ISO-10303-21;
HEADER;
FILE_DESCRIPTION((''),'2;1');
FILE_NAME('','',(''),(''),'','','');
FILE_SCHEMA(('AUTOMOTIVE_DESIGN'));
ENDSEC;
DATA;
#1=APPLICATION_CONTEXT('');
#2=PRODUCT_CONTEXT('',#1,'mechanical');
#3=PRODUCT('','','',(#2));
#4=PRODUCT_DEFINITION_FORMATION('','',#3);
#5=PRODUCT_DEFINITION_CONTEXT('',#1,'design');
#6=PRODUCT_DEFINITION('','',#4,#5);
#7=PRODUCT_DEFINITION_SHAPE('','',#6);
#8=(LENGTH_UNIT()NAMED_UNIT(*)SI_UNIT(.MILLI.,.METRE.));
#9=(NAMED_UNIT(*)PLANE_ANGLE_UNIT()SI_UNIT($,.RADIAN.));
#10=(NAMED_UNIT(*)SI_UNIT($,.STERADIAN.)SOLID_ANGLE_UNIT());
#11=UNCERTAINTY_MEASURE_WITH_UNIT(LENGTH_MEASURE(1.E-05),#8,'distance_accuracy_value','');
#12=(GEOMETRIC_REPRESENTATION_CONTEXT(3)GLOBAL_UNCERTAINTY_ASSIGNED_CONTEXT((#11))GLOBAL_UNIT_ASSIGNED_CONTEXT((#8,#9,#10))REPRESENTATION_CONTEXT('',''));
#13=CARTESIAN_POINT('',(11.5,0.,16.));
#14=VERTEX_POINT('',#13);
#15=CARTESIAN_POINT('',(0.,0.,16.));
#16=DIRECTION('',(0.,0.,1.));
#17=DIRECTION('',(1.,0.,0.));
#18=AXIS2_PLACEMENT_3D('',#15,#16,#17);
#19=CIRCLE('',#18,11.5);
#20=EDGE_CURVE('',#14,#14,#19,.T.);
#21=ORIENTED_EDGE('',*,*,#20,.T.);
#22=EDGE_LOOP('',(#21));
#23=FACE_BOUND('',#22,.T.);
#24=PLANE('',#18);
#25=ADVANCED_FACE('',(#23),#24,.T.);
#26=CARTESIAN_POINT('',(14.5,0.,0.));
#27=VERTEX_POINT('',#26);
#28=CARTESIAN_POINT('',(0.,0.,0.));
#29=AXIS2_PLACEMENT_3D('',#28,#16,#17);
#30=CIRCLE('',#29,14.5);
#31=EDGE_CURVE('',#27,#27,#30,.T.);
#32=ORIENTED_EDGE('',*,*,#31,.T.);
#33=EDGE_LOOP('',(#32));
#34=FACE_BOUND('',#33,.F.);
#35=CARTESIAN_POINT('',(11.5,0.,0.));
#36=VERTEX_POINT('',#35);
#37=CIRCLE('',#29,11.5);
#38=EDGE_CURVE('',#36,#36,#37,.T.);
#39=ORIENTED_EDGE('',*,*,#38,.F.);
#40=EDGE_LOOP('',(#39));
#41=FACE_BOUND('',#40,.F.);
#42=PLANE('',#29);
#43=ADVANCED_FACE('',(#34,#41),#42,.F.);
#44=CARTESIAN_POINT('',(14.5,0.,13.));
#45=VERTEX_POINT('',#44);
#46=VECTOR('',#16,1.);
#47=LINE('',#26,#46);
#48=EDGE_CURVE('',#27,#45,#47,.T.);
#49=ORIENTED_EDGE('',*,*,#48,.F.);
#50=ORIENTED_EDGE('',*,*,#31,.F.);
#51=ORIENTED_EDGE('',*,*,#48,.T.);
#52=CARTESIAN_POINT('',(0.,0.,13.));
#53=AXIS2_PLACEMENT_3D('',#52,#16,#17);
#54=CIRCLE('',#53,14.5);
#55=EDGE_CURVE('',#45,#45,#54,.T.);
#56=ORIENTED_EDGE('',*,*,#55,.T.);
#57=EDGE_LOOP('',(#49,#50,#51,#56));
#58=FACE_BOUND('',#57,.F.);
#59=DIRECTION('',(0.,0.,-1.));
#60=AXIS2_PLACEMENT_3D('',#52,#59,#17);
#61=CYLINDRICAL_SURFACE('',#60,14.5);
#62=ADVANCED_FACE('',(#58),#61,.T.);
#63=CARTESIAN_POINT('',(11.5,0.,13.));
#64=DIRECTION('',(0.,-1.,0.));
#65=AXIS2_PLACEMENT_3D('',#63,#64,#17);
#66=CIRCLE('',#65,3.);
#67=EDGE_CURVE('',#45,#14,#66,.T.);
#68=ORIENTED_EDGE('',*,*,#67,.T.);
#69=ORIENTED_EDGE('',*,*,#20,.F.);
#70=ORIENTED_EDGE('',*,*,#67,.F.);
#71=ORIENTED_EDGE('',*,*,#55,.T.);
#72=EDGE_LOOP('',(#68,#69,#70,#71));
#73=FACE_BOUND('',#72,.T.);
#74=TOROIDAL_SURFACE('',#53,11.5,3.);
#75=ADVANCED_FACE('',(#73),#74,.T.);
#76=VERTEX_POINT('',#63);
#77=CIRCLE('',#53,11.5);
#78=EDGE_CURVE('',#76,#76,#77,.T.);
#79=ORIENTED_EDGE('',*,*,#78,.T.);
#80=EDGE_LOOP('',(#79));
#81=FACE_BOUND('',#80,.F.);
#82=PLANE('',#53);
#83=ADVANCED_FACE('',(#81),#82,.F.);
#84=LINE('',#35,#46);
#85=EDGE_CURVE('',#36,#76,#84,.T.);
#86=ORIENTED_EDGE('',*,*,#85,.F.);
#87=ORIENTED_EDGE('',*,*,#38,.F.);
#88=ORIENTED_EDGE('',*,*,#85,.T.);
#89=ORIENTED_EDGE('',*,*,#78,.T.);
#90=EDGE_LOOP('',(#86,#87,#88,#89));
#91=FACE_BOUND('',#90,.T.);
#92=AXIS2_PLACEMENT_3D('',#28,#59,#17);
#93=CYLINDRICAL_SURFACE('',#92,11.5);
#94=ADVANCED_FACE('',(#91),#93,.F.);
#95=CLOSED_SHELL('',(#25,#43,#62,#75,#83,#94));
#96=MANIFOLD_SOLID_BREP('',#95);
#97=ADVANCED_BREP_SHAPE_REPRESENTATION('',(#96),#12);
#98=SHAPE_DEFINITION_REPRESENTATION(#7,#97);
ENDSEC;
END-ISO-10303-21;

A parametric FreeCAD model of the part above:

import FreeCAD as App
import Part
import Sketcher

V = App.Vector


def edges_at(feature, points):
    """Names of the edges that pass closest to the given points."""
    edges = feature.Shape.Edges
    near = lambda p: min(range(len(edges)), key=lambda i: edges[i].distToShape(Part.Vertex(*p))[0])
    return sorted({f"Edge{near(p) + 1}" for p in points})

doc = App.newDocument("Part")
params = doc.addObject("Spreadsheet::Sheet", "Params")
for row, (alias, value) in enumerate([
    ("sketch1_diameter", "29 mm"),
    ("sketch1_diameter2", "23 mm"),
    ("pad1_length", "13 mm"),
    ("sketch2_diameter", "29 mm"),
    ("pad2_length", "3 mm"),
    ("fillet_radius", "3 mm"),
], start=1):
    params.set(f"A{row}", alias)
    params.set(f"B{row}", "=" + value)
    params.setAlias(f"B{row}", alias)

body = doc.addObject("PartDesign::Body", "Body")

# Sketch on XY plane
sketch1 = doc.addObject("Sketcher::SketchObject", "Sketch")
body.addObject(sketch1)
sketch1.AttachmentSupport = (doc.XY_Plane, [""])
sketch1.MapMode = "FlatFace"
sketch1.addGeometry([
    Part.Circle(V(0, 0, 0), V(0, 0, 1), 14),
    Part.Circle(V(0, 0, 0), V(0, 0, 1), 12),
], False)
sketch1.addConstraint([
    Sketcher.Constraint("Coincident", 0, 3, -1, 1),
    Sketcher.Constraint("Coincident", 1, 3, -1, 1),
    Sketcher.Constraint("Diameter", 0, 29.0),
    Sketcher.Constraint("Diameter", 1, 23.0),
])
sketch1.setExpression("Constraints[2]", "Params.sketch1_diameter")
sketch1.setExpression("Constraints[3]", "Params.sketch1_diameter2")
pad1 = doc.addObject("PartDesign::Pad", "Pad")
body.addObject(pad1)
pad1.Profile = sketch1
pad1.setExpression("Length", "Params.pad1_length")

# Sketch on XY plane
sketch2 = doc.addObject("Sketcher::SketchObject", "Sketch001")
body.addObject(sketch2)
sketch2.AttachmentSupport = (doc.XY_Plane, [""])
sketch2.MapMode = "FlatFace"
sketch2.AttachmentOffset = App.Placement(V(0, 0, 13), App.Rotation())
sketch2.addGeometry(Part.Circle(V(0, 0, 0), V(0, 0, 1), 14), False)
sketch2.addConstraint([
    Sketcher.Constraint("Coincident", 0, 3, -1, 1),
    Sketcher.Constraint("Diameter", 0, 29.0),
])
sketch2.setExpression("Constraints[1]", "Params.sketch2_diameter")
pad2 = doc.addObject("PartDesign::Pad", "Pad001")
body.addObject(pad2)
pad2.Profile = sketch2
pad2.setExpression("Length", "Params.pad2_length")
doc.recompute()

fillet = doc.addObject("PartDesign::Fillet", "Fillet")
body.addObject(fillet)
fillet.Base = (pad2, edges_at(pad2, [(-14.5, 0, 16)]))
fillet.setExpression("Radius", "Params.fillet_radius")

doc.recompute()
